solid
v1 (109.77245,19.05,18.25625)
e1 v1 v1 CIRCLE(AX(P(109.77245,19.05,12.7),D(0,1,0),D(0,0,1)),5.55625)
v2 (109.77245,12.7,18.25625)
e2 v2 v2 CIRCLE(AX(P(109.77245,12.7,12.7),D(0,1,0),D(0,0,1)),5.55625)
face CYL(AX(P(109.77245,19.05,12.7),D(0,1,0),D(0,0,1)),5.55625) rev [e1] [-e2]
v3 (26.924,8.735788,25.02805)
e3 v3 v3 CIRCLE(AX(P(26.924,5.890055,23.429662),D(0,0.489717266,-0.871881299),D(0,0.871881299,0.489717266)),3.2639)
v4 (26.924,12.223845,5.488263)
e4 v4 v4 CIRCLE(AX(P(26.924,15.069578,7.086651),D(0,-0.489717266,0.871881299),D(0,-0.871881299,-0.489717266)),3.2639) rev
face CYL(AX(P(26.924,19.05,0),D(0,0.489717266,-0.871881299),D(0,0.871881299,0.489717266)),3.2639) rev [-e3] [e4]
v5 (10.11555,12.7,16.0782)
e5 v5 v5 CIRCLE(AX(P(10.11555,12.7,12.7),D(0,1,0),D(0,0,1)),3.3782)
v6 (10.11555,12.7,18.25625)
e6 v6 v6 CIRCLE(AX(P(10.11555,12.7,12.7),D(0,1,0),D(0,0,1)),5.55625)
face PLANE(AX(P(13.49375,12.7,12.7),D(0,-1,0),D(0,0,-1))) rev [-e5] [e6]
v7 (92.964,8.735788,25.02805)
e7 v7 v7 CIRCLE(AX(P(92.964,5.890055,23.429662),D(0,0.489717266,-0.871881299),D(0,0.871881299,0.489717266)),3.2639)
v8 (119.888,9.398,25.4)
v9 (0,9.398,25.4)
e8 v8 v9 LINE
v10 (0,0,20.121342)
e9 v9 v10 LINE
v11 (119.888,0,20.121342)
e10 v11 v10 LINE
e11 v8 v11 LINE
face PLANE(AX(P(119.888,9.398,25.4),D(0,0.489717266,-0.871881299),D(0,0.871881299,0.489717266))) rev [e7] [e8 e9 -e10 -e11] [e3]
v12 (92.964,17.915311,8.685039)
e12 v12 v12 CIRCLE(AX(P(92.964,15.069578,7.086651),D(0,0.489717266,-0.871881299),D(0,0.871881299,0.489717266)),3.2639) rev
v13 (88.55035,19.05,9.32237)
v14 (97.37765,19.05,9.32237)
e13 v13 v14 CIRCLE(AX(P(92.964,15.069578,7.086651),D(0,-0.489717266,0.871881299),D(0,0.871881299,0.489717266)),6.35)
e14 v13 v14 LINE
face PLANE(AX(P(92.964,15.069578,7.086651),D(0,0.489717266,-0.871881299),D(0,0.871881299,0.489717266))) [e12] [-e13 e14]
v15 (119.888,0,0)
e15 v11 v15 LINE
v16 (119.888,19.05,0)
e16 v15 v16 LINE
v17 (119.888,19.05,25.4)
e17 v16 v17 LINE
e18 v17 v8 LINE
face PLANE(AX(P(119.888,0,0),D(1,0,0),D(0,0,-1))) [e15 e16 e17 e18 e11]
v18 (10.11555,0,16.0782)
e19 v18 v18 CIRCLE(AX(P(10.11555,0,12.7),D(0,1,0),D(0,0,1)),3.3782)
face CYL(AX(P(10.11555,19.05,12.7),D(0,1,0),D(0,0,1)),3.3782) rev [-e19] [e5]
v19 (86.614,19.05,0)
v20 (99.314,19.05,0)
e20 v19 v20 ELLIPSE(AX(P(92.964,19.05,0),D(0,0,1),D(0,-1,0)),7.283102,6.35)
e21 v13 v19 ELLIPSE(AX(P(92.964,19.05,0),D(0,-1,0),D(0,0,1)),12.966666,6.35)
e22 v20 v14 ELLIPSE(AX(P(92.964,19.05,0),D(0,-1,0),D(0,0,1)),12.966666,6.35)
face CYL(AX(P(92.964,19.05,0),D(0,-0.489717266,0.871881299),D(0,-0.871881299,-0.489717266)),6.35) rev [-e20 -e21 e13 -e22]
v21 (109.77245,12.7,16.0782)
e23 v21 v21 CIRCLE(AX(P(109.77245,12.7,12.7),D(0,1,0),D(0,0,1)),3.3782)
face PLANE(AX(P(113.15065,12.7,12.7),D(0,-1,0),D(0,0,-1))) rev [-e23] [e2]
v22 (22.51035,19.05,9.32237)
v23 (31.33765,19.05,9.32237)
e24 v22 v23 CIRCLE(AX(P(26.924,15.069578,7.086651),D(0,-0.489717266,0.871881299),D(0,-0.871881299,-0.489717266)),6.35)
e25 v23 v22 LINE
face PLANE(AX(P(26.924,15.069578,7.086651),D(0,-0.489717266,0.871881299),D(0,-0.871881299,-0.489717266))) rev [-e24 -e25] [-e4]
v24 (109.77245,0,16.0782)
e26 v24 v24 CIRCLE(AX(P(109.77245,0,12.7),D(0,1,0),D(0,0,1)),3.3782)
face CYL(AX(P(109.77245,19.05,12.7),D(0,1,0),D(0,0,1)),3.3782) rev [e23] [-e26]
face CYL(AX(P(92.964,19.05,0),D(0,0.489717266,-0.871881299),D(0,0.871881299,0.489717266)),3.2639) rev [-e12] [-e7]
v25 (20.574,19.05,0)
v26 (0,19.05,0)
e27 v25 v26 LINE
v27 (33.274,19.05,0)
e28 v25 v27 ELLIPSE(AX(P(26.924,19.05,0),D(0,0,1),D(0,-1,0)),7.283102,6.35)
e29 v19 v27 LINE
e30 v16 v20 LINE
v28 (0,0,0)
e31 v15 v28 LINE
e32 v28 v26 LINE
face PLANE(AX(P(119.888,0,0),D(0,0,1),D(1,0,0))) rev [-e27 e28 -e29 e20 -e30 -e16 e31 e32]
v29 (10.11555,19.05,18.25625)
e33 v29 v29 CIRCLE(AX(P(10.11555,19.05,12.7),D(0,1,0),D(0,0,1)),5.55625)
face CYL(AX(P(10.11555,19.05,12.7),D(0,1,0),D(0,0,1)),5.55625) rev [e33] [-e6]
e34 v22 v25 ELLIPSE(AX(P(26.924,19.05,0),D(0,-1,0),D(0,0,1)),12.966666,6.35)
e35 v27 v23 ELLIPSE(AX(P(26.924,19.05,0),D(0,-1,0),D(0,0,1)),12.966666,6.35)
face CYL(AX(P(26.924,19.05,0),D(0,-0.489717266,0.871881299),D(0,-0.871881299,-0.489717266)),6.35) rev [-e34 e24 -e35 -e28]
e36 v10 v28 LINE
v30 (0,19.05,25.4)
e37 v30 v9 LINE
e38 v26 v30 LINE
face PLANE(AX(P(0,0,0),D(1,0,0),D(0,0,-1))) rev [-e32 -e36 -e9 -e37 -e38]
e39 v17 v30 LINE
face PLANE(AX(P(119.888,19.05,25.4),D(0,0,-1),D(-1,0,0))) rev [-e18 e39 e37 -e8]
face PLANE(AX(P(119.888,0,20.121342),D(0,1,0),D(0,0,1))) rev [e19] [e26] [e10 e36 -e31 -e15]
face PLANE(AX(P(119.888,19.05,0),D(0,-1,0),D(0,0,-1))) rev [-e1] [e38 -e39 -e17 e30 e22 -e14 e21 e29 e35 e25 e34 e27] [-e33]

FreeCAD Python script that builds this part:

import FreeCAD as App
import Part
import Sketcher
Q = App.Units.Quantity


def add_polygon(sketch, points):
    """Adds a closed chain of lines whose ends are joined by coincident constraints."""
    first, n = sketch.GeometryCount, len(points)
    for a, b in zip(points, points[1:] + points[:1]):
        sketch.addGeometry(Part.LineSegment(App.Vector(*a, 0), App.Vector(*b, 0)), False)
    for i in range(n):
        sketch.addConstraint(Sketcher.Constraint("Coincident", first + i, 2, first + (i + 1) % n, 1))

doc = App.newDocument("Part")
body = doc.addObject("PartDesign::Body", "Body")

# Sketch on YZ plane
sketch1 = body.newObject("Sketcher::SketchObject", "Sketch")
sketch1.AttachmentSupport = (doc.getObject("YZ_Plane"), [""])
sketch1.MapMode = "FlatFace"
add_polygon(sketch1, [(0, 0), (19.05, 0), (19.05, 25.4), (9.398, 25.4), (0, 20.121342)])  # lines 0-4
sketch1.addConstraint([
    Sketcher.Constraint("Horizontal", 0),
    Sketcher.Constraint("Vertical", 1),
    Sketcher.Constraint("Horizontal", 2),
    Sketcher.Constraint("Vertical", 4),
    Sketcher.Constraint("Coincident", 4, 2, -1, 1),
    Sketcher.Constraint("DistanceY", 1, 1, 1, 2, Q("1 in")),
    Sketcher.Constraint("DistanceX", 0, 1, 0, 2, Q("0.75 in")),
    Sketcher.Constraint("DistanceX", 2, 2, 2, 1, Q("0.38 in")),
    Sketcher.Constraint("Distance", 3, Q("10.77899 mm")),
])
pad1 = body.newObject("PartDesign::Pad", "Pad")
pad1.Profile = sketch1
pad1.Length = Q("4.72 in")

# Sketch on XZ plane
sketch2 = body.newObject("Sketcher::SketchObject", "Sketch001")
sketch2.AttachmentSupport = (doc.getObject("XZ_Plane"), [""])
sketch2.MapMode = "FlatFace"
sketch2.AttachmentOffset = App.Placement(App.Vector(0, 0, -0.75 * 25.4), App.Rotation())
sketch2.addGeometry([
    Part.Circle(App.Vector(10.11555, 12.7, 0), App.Vector(0, 0, 1), 3.3782),
    Part.Circle(App.Vector(109.77245, 12.7, 0), App.Vector(0, 0, 1), 3.3782),
], False)
sketch2.addConstraint([
    Sketcher.Constraint("Equal", 0, 1),
    Sketcher.Constraint("Horizontal", 0, 3, 1, 3),
    Sketcher.Constraint("Diameter", 0, Q("0.266 in")),
    Sketcher.Constraint("DistanceY", -1, 1, 0, 3, Q("0.5 in")),
    Sketcher.Constraint("DistanceX", 0, 3, 1, 3, Q("3.9235 in")),
    Sketcher.Constraint("DistanceX", -1, 1, 0, 3, Q("10.11555 mm")),
])
doc.recompute()
hole = body.newObject("PartDesign::Hole", "Hole")
hole.Profile = sketch2
hole.ThreadType = "None"
hole.Diameter = Q("0.266 in")
hole.DepthType = "ThroughAll"
hole.HoleCutType = "Counterbore"
hole.HoleCutDiameter = Q("0.4375 in")
hole.HoleCutDepth = Q("0.25 in")
hole.Reversed = True

# Sketch on an angled plane
sketch3 = body.newObject("Sketcher::SketchObject", "Sketch002")
sketch3.Placement = App.Placement(App.Vector(0, 4.568628, -8.13388), App.Rotation(App.Vector(1, 0, 0), App.Vector(0, -0.871881299, -0.489717266), App.Vector(0, 0.489717266, -0.871881299), "ZXY"))
sketch3.addGeometry([
    Part.Circle(App.Vector(92.964, -16.609339, 0), App.Vector(0, 0, 1), 3.2639),
    Part.Circle(App.Vector(26.924, -16.609339, 0), App.Vector(0, 0, 1), 3.2639),
], False)
sketch3.addConstraint([
    Sketcher.Constraint("Equal", 0, 1),
    Sketcher.Constraint("Horizontal", 0, 3, 1, 3),
    Sketcher.Constraint("Diameter", 0, Q("0.257 in")),
    Sketcher.Constraint("DistanceX", 1, 3, 0, 3, Q("2.6 in")),
    Sketcher.Constraint("DistanceX", -1, 1, 0, 3, Q("3.66 in")),
    Sketcher.Constraint("DistanceY", 0, 3, -1, 1, Q("16.609339 mm")),
])
doc.recompute()
hole2 = body.newObject("PartDesign::Hole", "Hole001")
hole2.Profile = sketch3
hole2.ThreadType = "None"
hole2.Diameter = Q("0.257 in")
hole2.DepthType = "ThroughAll"

# Sketch on an angled plane
sketch4 = body.newObject("Sketcher::SketchObject", "Sketch003")
sketch4.Placement = App.Placement(App.Vector(0, 0.588206, -1.047229), App.Rotation(App.Vector(1, 0, 0), App.Vector(0, 0.871881299, 0.489717266), App.Vector(0, -0.489717266, 0.871881299), "ZXY"))
sketch4.addGeometry([
    Part.Circle(App.Vector(26.924, 16.609339, 0), App.Vector(0, 0, 1), 6.35),
    Part.Circle(App.Vector(92.964, 16.609339, 0), App.Vector(0, 0, 1), 6.35),
], False)
sketch4.addConstraint([
    Sketcher.Constraint("Equal", 0, 1),
    Sketcher.Constraint("Horizontal", 0, 3, 1, 3),
    Sketcher.Constraint("Diameter", 0, Q("0.5 in")),
    Sketcher.Constraint("DistanceX", 0, 3, 1, 3, Q("2.6 in")),
    Sketcher.Constraint("DistanceX", -1, 1, 0, 3, Q("1.06 in")),
    Sketcher.Constraint("DistanceY", -1, 1, 0, 3, Q("16.609339 mm")),
])
pocket1 = body.newObject("PartDesign::Pocket", "Pocket")
pocket1.Profile = sketch4
pocket1.Type = "ThroughAll"

doc.recompute()
